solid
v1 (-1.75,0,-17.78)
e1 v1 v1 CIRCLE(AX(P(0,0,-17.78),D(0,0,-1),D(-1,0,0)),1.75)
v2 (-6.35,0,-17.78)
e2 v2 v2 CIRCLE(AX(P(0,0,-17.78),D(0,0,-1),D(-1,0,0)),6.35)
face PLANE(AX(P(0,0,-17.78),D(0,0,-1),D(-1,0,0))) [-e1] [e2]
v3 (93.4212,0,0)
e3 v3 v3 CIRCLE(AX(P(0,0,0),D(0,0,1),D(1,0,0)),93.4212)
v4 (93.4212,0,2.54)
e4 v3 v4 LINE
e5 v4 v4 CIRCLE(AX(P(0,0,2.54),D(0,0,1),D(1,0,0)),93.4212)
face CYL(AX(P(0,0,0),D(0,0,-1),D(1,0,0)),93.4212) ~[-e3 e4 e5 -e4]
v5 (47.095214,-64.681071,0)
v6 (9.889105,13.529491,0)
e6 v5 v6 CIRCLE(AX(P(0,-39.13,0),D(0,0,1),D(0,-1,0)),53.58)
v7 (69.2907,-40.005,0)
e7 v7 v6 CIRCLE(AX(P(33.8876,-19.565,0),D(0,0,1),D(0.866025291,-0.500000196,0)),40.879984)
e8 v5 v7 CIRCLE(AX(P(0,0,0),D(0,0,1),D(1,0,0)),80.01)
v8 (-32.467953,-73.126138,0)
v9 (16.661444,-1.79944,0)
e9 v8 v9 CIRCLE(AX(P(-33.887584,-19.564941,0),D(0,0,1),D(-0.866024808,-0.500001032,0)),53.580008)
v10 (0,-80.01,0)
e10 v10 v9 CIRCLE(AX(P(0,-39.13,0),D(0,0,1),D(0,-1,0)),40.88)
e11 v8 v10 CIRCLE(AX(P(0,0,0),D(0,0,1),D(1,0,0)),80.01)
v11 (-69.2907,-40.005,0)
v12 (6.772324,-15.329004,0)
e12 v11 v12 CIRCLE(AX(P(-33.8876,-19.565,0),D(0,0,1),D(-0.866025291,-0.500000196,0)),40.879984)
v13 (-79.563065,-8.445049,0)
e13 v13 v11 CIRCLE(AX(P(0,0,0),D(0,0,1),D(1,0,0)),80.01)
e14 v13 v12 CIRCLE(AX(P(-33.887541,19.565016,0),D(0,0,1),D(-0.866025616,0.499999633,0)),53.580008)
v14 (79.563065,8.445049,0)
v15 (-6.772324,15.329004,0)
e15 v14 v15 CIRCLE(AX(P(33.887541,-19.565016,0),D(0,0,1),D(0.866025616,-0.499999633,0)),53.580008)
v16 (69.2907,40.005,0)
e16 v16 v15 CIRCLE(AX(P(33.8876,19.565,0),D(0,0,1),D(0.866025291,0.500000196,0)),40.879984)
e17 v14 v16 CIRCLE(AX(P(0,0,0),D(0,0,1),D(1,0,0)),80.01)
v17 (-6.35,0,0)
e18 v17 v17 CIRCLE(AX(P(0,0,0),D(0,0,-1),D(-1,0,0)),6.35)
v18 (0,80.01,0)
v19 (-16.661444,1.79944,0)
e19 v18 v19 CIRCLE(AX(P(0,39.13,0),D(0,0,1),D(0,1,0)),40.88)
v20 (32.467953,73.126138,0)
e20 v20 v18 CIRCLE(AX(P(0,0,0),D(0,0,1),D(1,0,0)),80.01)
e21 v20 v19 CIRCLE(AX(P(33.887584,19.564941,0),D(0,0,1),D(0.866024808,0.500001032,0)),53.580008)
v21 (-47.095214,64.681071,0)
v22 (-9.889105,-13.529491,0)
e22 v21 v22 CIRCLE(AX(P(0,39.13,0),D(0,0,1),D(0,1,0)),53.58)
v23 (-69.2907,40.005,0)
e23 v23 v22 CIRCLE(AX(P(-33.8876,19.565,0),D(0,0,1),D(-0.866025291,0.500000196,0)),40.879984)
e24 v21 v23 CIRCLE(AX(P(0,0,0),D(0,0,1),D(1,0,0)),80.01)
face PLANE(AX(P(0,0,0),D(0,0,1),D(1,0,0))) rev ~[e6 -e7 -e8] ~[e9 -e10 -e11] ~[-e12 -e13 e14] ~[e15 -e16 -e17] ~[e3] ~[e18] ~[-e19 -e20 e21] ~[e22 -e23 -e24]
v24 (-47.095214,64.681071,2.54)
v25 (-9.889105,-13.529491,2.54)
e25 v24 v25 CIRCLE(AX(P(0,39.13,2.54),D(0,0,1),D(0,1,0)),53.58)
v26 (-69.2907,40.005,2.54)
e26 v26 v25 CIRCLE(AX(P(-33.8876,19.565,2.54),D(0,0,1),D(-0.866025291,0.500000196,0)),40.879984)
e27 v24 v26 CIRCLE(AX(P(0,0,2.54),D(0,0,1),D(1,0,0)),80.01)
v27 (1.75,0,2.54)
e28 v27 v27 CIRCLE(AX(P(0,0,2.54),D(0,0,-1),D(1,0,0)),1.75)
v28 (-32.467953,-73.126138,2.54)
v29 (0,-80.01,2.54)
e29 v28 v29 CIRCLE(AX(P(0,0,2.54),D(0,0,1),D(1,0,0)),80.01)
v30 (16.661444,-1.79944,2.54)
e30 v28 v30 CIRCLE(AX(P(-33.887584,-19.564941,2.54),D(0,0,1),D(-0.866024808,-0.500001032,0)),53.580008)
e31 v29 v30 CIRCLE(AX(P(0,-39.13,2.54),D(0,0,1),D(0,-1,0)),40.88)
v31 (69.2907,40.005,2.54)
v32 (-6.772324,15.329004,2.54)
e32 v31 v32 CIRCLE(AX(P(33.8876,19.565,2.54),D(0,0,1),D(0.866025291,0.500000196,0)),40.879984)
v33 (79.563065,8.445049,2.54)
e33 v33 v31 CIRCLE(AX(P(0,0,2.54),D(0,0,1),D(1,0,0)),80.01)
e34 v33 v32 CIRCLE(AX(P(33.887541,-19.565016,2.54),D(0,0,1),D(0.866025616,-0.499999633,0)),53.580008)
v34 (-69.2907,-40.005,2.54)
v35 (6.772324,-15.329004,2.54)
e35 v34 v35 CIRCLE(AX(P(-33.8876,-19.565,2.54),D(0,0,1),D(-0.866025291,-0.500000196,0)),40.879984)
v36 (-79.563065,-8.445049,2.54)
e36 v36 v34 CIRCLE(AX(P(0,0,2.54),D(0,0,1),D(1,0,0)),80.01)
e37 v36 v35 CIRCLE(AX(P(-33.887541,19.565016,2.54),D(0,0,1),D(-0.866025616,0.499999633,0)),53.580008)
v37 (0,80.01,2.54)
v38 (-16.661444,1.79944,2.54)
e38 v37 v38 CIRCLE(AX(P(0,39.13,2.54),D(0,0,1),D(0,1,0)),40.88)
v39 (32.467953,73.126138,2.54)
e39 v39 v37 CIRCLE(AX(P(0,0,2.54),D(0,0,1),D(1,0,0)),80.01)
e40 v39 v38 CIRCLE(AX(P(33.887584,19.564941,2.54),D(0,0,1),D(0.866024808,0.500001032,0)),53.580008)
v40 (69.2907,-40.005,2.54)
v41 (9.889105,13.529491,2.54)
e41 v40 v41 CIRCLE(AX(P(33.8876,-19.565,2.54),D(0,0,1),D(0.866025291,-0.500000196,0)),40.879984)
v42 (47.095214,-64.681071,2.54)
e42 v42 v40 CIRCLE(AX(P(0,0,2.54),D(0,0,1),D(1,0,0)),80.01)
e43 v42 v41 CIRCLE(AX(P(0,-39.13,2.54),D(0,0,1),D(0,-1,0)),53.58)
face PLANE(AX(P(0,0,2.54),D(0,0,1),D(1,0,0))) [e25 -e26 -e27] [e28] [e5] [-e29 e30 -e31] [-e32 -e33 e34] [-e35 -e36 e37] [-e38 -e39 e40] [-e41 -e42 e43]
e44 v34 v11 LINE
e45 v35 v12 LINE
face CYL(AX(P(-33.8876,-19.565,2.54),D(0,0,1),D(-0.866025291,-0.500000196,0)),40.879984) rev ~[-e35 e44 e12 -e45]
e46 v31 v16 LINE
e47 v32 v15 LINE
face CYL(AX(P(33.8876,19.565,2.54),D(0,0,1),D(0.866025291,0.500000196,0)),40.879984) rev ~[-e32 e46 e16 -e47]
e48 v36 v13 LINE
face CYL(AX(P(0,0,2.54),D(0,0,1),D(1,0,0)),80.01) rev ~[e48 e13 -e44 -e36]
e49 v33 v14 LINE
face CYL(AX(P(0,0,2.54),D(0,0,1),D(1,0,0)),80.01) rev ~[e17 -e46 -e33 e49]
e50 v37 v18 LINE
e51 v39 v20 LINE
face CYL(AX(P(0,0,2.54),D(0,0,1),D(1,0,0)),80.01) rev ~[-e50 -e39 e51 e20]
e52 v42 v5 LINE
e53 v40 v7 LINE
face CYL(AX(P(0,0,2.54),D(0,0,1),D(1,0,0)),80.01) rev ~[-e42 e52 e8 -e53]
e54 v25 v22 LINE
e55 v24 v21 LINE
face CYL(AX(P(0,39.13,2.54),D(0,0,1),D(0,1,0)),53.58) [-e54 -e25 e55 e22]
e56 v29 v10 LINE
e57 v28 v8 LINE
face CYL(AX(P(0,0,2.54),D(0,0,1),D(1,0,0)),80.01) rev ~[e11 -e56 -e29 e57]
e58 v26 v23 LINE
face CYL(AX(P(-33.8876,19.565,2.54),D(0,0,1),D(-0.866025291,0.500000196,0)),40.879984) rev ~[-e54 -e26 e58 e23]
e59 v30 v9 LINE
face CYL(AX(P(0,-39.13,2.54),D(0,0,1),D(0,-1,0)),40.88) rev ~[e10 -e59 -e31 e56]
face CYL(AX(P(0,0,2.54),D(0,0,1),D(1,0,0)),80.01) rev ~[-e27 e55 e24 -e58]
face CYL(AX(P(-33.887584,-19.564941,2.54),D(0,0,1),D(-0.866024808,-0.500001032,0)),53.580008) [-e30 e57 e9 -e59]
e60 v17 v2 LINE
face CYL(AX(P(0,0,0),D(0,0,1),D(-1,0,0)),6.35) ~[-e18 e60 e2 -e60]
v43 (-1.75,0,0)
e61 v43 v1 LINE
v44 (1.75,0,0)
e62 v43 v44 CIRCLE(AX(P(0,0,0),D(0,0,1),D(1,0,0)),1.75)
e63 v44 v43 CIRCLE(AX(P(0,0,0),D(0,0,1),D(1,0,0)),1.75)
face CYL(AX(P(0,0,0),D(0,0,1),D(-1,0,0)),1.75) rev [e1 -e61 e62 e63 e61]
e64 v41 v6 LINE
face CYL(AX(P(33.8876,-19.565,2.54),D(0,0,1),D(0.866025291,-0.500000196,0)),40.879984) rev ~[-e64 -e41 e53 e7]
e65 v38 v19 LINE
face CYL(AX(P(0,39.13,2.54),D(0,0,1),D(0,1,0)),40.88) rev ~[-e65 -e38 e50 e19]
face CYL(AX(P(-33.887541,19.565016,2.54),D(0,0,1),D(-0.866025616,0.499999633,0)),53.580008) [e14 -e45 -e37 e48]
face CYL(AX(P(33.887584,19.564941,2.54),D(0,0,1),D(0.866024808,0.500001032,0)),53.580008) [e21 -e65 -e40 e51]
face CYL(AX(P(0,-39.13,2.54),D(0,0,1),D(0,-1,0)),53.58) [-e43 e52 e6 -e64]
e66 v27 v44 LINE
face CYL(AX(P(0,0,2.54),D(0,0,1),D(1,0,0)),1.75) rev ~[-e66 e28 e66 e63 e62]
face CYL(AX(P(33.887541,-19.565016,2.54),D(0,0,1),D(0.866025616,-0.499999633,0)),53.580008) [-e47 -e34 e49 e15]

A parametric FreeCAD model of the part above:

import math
import FreeCAD as App
import Part
import Sketcher

V = App.Vector
Q = App.Units.Quantity

doc = App.newDocument("Part")
params = doc.addObject("Spreadsheet::Sheet", "Params")
for row, (alias, value) in enumerate([
    ("sketch1_diameter", "7.356 in"),
    ("pad1_length", "0.1 in"),
    ("sketch2_radius", "3.15 in"),
    ("pocket1_length", "0.1 in"),
    ("sketch3_diameter", "0.5 in"),
    ("pad2_length", "0.7 in"),
], start=1):
    params.set(f"A{row}", alias)
    params.set(f"B{row}", "=" + value)
    params.setAlias(f"B{row}", alias)

body = doc.addObject("PartDesign::Body", "Body")

# Sketch on XY plane
sketch1 = doc.addObject("Sketcher::SketchObject", "Sketch")
body.addObject(sketch1)
sketch1.AttachmentSupport = (doc.XY_Plane, [""])
sketch1.MapMode = "FlatFace"
sketch1.addGeometry(Part.Circle(V(0, 0, 0), V(0, 0, 1), 93), False)
sketch1.addConstraint(Sketcher.Constraint("Coincident", 0, 3, -1, 1))
sketch1.addConstraint(Sketcher.Constraint("Diameter", 0, Q("7.356 in")))
sketch1.setExpression("Constraints[1]", "Params.sketch1_diameter")
pad1 = doc.addObject("PartDesign::Pad", "Pad")
body.addObject(pad1)
pad1.Profile = sketch1
pad1.setExpression("Length", "Params.pad1_length")

# Sketch on XY plane
sketch2 = doc.addObject("Sketcher::SketchObject", "Sketch001")
body.addObject(sketch2)
sketch2.AttachmentSupport = (doc.XY_Plane, [""])
sketch2.MapMode = "FlatFace"
sketch2.AttachmentOffset = App.Placement(V(0, 0, 0.1 * 25.4), App.Rotation())
sketch2.addGeometry(Part.Circle(V(0, 0, 0), V(0, 0, 1), 1.8), False)
sketch2.addGeometry(Part.ArcOfCircle(Part.Circle(V(-33.9, -19.6, 0), V(0, 0, 1), 40.9), math.radians(-150), math.radians(6)), False)
sketch2.addGeometry(Part.ArcOfCircle(Part.Circle(V(-33.9, 19.6, 0), V(0, 0, 1), 53.6), math.radians(-148), math.radians(-41)), False)
sketch2.addGeometry(Part.ArcOfCircle(Part.Circle(V(0, 0, 0), V(0, 0, 1), 80), math.radians(-174), math.radians(-150)), False)
sketch2.addGeometry(Part.ArcOfCircle(Part.Circle(V(-33.9, 19.6, 0), V(0, 0, 1), 40.9), math.radians(150), math.radians(306)), False)
sketch2.addGeometry(Part.ArcOfCircle(Part.Circle(V(0, 39.1, 0), V(0, 0, 1), 53.6), math.radians(152), math.radians(259)), False)
sketch2.addGeometry(Part.ArcOfCircle(Part.Circle(V(0, 0, 0), V(0, 0, 1), 80), math.radians(126), math.radians(150)), False)
sketch2.addGeometry(Part.ArcOfCircle(Part.Circle(V(0, -39.1, 0), V(0, 0, 1), 40.9), math.radians(-90), math.radians(66)), False)
sketch2.addGeometry(Part.ArcOfCircle(Part.Circle(V(-33.9, -19.6, 0), V(0, 0, 1), 53.6), math.radians(-88), math.radians(19)), False)
sketch2.addGeometry(Part.ArcOfCircle(Part.Circle(V(0, 0, 0), V(0, 0, 1), 80), math.radians(-114), math.radians(-90)), False)
sketch2.addGeometry(Part.ArcOfCircle(Part.Circle(V(0, 39.1, 0), V(0, 0, 1), 40.9), math.radians(90), math.radians(246)), False)
sketch2.addGeometry(Part.ArcOfCircle(Part.Circle(V(33.9, 19.6, 0), V(0, 0, 1), 53.6), math.radians(92), math.radians(199)), False)
sketch2.addGeometry(Part.ArcOfCircle(Part.Circle(V(0, 0, 0), V(0, 0, 1), 80), math.radians(66), math.radians(90)), False)
sketch2.addGeometry(Part.ArcOfCircle(Part.Circle(V(33.9, -19.6, 0), V(0, 0, 1), 40.9), math.radians(-30), math.radians(126)), False)
sketch2.addGeometry(Part.ArcOfCircle(Part.Circle(V(0, -39.1, 0), V(0, 0, 1), 53.6), math.radians(-28), math.radians(79)), False)
sketch2.addGeometry(Part.ArcOfCircle(Part.Circle(V(0, 0, 0), V(0, 0, 1), 80), math.radians(-54), math.radians(-30)), False)
sketch2.addGeometry(Part.ArcOfCircle(Part.Circle(V(33.9, 19.6, 0), V(0, 0, 1), 40.9), math.radians(30), math.radians(186)), False)
sketch2.addGeometry(Part.ArcOfCircle(Part.Circle(V(33.9, -19.6, 0), V(0, 0, 1), 53.6), math.radians(32), math.radians(139)), False)
sketch2.addGeometry(Part.ArcOfCircle(Part.Circle(V(0, 0, 0), V(0, 0, 1), 80), math.radians(6), math.radians(30)), False)
sketch2.addConstraint(Sketcher.Constraint("Coincident", 1, 2, 2, 2))
sketch2.addConstraint(Sketcher.Constraint("Coincident", 2, 1, 3, 1))
sketch2.addConstraint(Sketcher.Constraint("Tangent", 3, 2, 1, 1))
sketch2.addConstraint(Sketcher.Constraint("Coincident", 4, 2, 5, 2))
sketch2.addConstraint(Sketcher.Constraint("Coincident", 5, 1, 6, 1))
sketch2.addConstraint(Sketcher.Constraint("Tangent", 6, 2, 4, 1))
sketch2.addConstraint(Sketcher.Constraint("Coincident", 7, 2, 8, 2))
sketch2.addConstraint(Sketcher.Constraint("Coincident", 8, 1, 9, 1))
sketch2.addConstraint(Sketcher.Constraint("Tangent", 9, 2, 7, 1))
sketch2.addConstraint(Sketcher.Constraint("Coincident", 10, 2, 11, 2))
sketch2.addConstraint(Sketcher.Constraint("Coincident", 11, 1, 12, 1))
sketch2.addConstraint(Sketcher.Constraint("Tangent", 12, 2, 10, 1))
sketch2.addConstraint(Sketcher.Constraint("Coincident", 13, 2, 14, 2))
sketch2.addConstraint(Sketcher.Constraint("Coincident", 14, 1, 15, 1))
sketch2.addConstraint(Sketcher.Constraint("Tangent", 15, 2, 13, 1))
sketch2.addConstraint(Sketcher.Constraint("Coincident", 16, 2, 17, 2))
sketch2.addConstraint(Sketcher.Constraint("Coincident", 17, 1, 18, 1))
sketch2.addConstraint(Sketcher.Constraint("Tangent", 18, 2, 16, 1))
sketch2.addConstraint(Sketcher.Constraint("Coincident", 0, 3, -1, 1))
sketch2.addConstraint(Sketcher.Constraint("Coincident", 3, 3, -1, 1))
sketch2.addConstraint(Sketcher.Constraint("Coincident", 6, 3, -1, 1))
sketch2.addConstraint(Sketcher.Constraint("Coincident", 9, 3, -1, 1))
sketch2.addConstraint(Sketcher.Constraint("Coincident", 12, 3, -1, 1))
sketch2.addConstraint(Sketcher.Constraint("Coincident", 15, 3, -1, 1))
sketch2.addConstraint(Sketcher.Constraint("Coincident", 18, 3, -1, 1))
sketch2.addConstraint(Sketcher.Constraint("Coincident", 4, 3, 2, 3))
sketch2.addConstraint(Sketcher.Constraint("Coincident", 8, 3, 1, 3))
sketch2.addConstraint(Sketcher.Constraint("Coincident", 10, 3, 5, 3))
sketch2.addConstraint(Sketcher.Constraint("Coincident", 14, 3, 7, 3))
sketch2.addConstraint(Sketcher.Constraint("Coincident", 16, 3, 11, 3))
sketch2.addConstraint(Sketcher.Constraint("Coincident", 17, 3, 13, 3))
sketch2.addConstraint(Sketcher.Constraint("Equal", 1, 4))
sketch2.addConstraint(Sketcher.Constraint("Equal", 2, 5))
sketch2.addConstraint(Sketcher.Constraint("Equal", 3, 6))
sketch2.addConstraint(Sketcher.Constraint("Equal", 4, 7))
sketch2.addConstraint(Sketcher.Constraint("Equal", 5, 8))
sketch2.addConstraint(Sketcher.Constraint("Equal", 6, 9))
sketch2.addConstraint(Sketcher.Constraint("Equal", 7, 10))
sketch2.addConstraint(Sketcher.Constraint("Equal", 8, 11))
sketch2.addConstraint(Sketcher.Constraint("Equal", 9, 12))
sketch2.addConstraint(Sketcher.Constraint("Equal", 10, 13))
sketch2.addConstraint(Sketcher.Constraint("Equal", 11, 14))
sketch2.addConstraint(Sketcher.Constraint("Equal", 12, 15))
sketch2.addConstraint(Sketcher.Constraint("Equal", 13, 16))
sketch2.addConstraint(Sketcher.Constraint("Equal", 14, 17))
sketch2.addConstraint(Sketcher.Constraint("Equal", 15, 18))
sketch2.addConstraint(Sketcher.Constraint("Symmetric", 7, 2, 10, 2, -1, 1))
sketch2.addConstraint(Sketcher.Constraint("PointOnObject", 5, 3, -2))
sketch2.addConstraint(Sketcher.Constraint("Horizontal", 4, 3, 11, 3))
sketch2.addConstraint(Sketcher.Constraint("Horizontal", 8, 3, 13, 3))
sketch2.addConstraint(Sketcher.Constraint("Radius", 3, Q("3.15 in")))
sketch2.addConstraint(Sketcher.Constraint("Diameter", 0, Q("0.1378 in")))
sketch2.addConstraint(Sketcher.Constraint("Radius", 1, 40.88))
sketch2.addConstraint(Sketcher.Constraint("Radius", 2, 53.58))
sketch2.addConstraint(Sketcher.Constraint("DistanceY", 3, 2, -1, 1, Q("1.575 in")))
sketch2.setExpression("Constraints[50]", "Params.sketch2_radius")
pocket1 = doc.addObject("PartDesign::Pocket", "Pocket")
body.addObject(pocket1)
pocket1.Profile = sketch2
pocket1.setExpression("Length", "Params.pocket1_length")

# Sketch on XY plane
sketch3 = doc.addObject("Sketcher::SketchObject", "Sketch002")
body.addObject(sketch3)
sketch3.AttachmentSupport = (doc.XY_Plane, [""])
sketch3.MapMode = "FlatFace"
sketch3.addGeometry(Part.Circle(V(0, 0, 0), V(0, 0, 1), 6.3), False)
sketch3.addGeometry(Part.Circle(V(0, 0, 0), V(0, 0, 1), 1.8), False)
sketch3.addConstraint(Sketcher.Constraint("Coincident", 0, 3, -1, 1))
sketch3.addConstraint(Sketcher.Constraint("Coincident", 1, 3, -1, 1))
sketch3.addConstraint(Sketcher.Constraint("Diameter", 0, Q("0.5 in")))
sketch3.addConstraint(Sketcher.Constraint("Diameter", 1, Q("0.1378 in")))
sketch3.setExpression("Constraints[2]", "Params.sketch3_diameter")
pad2 = doc.addObject("PartDesign::Pad", "Pad001")
body.addObject(pad2)
pad2.Profile = sketch3
pad2.setExpression("Length", "Params.pad2_length")
pad2.Reversed = True

doc.recompute()
